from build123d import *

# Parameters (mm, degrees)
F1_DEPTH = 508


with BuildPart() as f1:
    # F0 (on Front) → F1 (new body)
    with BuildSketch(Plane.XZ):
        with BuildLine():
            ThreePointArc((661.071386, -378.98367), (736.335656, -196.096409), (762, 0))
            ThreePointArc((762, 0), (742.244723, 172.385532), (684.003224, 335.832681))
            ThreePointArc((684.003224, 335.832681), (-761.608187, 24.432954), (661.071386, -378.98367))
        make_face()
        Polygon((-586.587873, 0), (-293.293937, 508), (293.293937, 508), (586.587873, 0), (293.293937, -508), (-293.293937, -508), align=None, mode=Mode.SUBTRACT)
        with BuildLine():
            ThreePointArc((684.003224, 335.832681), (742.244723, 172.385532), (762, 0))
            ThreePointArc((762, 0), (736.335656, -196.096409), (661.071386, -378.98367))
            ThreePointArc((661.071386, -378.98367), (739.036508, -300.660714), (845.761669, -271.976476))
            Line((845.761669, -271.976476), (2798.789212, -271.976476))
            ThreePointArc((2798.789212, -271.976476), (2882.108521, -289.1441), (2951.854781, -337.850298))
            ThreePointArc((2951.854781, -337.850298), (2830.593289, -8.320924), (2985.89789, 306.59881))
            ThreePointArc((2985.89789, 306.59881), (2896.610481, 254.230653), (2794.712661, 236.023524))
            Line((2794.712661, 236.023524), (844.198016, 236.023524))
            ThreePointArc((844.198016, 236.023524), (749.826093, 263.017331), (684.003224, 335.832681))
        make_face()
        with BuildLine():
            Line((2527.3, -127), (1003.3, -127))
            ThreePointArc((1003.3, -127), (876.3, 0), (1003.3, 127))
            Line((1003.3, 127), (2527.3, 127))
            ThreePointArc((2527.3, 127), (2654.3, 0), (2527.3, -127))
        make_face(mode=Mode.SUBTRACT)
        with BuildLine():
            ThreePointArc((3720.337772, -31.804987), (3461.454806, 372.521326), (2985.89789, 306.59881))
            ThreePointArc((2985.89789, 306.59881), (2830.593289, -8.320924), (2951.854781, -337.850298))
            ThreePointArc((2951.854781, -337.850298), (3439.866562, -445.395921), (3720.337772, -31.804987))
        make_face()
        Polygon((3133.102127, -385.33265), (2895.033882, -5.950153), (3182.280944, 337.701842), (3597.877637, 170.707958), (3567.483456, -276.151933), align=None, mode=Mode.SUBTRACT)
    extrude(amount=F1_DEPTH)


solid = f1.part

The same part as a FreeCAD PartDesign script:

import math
import FreeCAD as App
import Part
import Sketcher
Q = App.Units.Quantity


def add_polygon(sketch, points):
    """Adds a closed chain of lines whose ends are joined by coincident constraints."""
    first, n = sketch.GeometryCount, len(points)
    for a, b in zip(points, points[1:] + points[:1]):
        sketch.addGeometry(Part.LineSegment(App.Vector(*a, 0), App.Vector(*b, 0)), False)
    for i in range(n):
        sketch.addConstraint(Sketcher.Constraint("Coincident", first + i, 2, first + (i + 1) % n, 1))

doc = App.newDocument("Part")
body = doc.addObject("PartDesign::Body", "Body")

# Sketch on XZ plane
sketch1 = body.newObject("Sketcher::SketchObject", "Sketch")
sketch1.AttachmentSupport = (doc.getObject("XZ_Plane"), [""])
sketch1.MapMode = "FlatFace"
sketch1.addGeometry(Part.ArcOfCircle(Part.Circle(App.Vector(0, 0, 0), App.Vector(0, 0, 1), 762), math.radians(26.150167), math.radians(330.174911)), False)  # 0
sketch1.addGeometry(Part.ArcOfCircle(Part.Circle(App.Vector(845.761668, -484.864219, 0), App.Vector(0, 0, 1), 212.887743), math.radians(90), math.radians(150.174911)), False)  # 1
sketch1.addGeometry(Part.LineSegment(App.Vector(845.761669, -271.976476, 0), App.Vector(2798.789212, -271.976476, 0)), False)  # 2
sketch1.addGeometry(Part.ArcOfCircle(Part.Circle(App.Vector(2798.789213, -482.746306, 0), App.Vector(0, 0, 1), 210.76983), math.radians(43.429448), math.radians(90)), False)  # 3
sketch1.addGeometry(Part.ArcOfCircle(Part.Circle(App.Vector(3275.15561, -31.804988, 0), App.Vector(0, 0, 1), 445.182162), math.radians(-136.570552), math.radians(0)), False)  # 4
sketch1.addGeometry(Part.ArcOfCircle(Part.Circle(App.Vector(3275.155609, -31.804987, 0), App.Vector(0, 0, 1), 445.182163), math.radians(0), math.radians(130.522859)), False)  # 5
sketch1.addGeometry(Part.ArcOfCircle(Part.Circle(App.Vector(2794.712663, 530.267191, 0), App.Vector(0, 0, 1), 294.243667), math.radians(-90), math.radians(-49.477141)), False)  # 6
sketch1.addGeometry(Part.LineSegment(App.Vector(2794.712661, 236.023524, 0), App.Vector(844.198016, 236.023524, 0)), False)  # 7
sketch1.addGeometry(Part.ArcOfCircle(Part.Circle(App.Vector(844.198017, 414.485304, 0), App.Vector(0, 0, 1), 178.46178), math.radians(-153.849832), math.radians(-90)), False)  # 8
add_polygon(sketch1, [(3567.483456, -276.151933), (3133.102127, -385.33265), (2895.033882, -5.950153), (3182.280944, 337.701842), (3597.877637, 170.707958)])  # lines 9-13
add_polygon(sketch1, [(-293.293937, -508), (-586.587873, 0), (-293.293937, 508), (293.293937, 508), (586.587873, 0), (293.293937, -508)])  # lines 14-19
sketch1.addGeometry(Part.ArcOfCircle(Part.Circle(App.Vector(2527.3, 0, 0), App.Vector(0, 0, 1), 127), math.radians(-90), math.radians(90)), False)  # 20
sketch1.addGeometry(Part.LineSegment(App.Vector(2527.3, -127, 0), App.Vector(1003.3, -127, 0)), False)  # 21
sketch1.addGeometry(Part.ArcOfCircle(Part.Circle(App.Vector(1003.3, 0, 0), App.Vector(0, 0, 1), 127), math.radians(90), math.radians(270)), False)  # 22
sketch1.addGeometry(Part.LineSegment(App.Vector(1003.3, 127, 0), App.Vector(2527.3, 127, 0)), False)  # 23
sketch1.addConstraint([
    Sketcher.Constraint("Coincident", 0, 2, 1, 2),
    Sketcher.Constraint("Coincident", 1, 1, 2, 1),
    Sketcher.Constraint("Coincident", 2, 2, 3, 2),
    Sketcher.Constraint("Coincident", 3, 1, 4, 1),
    Sketcher.Constraint("Coincident", 4, 2, 5, 1),
    Sketcher.Constraint("Coincident", 5, 2, 6, 2),
    Sketcher.Constraint("Coincident", 6, 1, 7, 1),
    Sketcher.Constraint("Coincident", 7, 2, 8, 2),
    Sketcher.Constraint("Coincident", 8, 1, 0, 1),
    Sketcher.Constraint("Coincident", 20, 1, 21, 1),
    Sketcher.Constraint("Coincident", 21, 2, 22, 2),
    Sketcher.Constraint("Coincident", 22, 1, 23, 1),
    Sketcher.Constraint("Coincident", 23, 2, 20, 2),
    Sketcher.Constraint("Horizontal", 2),
    Sketcher.Constraint("Horizontal", 7),
    Sketcher.Constraint("Horizontal", 16),
    Sketcher.Constraint("Horizontal", 19),
    Sketcher.Constraint("Horizontal", 21),
    Sketcher.Constraint("Horizontal", 23),
    Sketcher.Constraint("Coincident", 0, 3, -1, 1),
    Sketcher.Constraint("Coincident", 5, 3, 4, 3),
    Sketcher.Constraint("PointOnObject", 20, 3, -1),
    Sketcher.Constraint("PointOnObject", 14, 2, -1),
    Sketcher.Constraint("PointOnObject", 17, 2, -1),
    Sketcher.Constraint("Radius", 0, Q("30 in")),
    Sketcher.Constraint("Radius", 20, Q("5 in")),
    Sketcher.Constraint("DistanceX", 21, 2, 21, 1, Q("60 in")),
    Sketcher.Constraint("DistanceX", 23, 1, 23, 2, Q("60 in")),
    Sketcher.Constraint("DistanceY", -1, 1, 15, 2, Q("20 in")),
    Sketcher.Constraint("DistanceY", 18, 2, -1, 1, Q("20 in")),
    Sketcher.Constraint("DistanceX", 22, 3, 20, 3, Q("60 in")),
    Sketcher.Constraint("DistanceY", 2, 2, 6, 1, Q("20 in")),
    Sketcher.Constraint("DistanceX", -1, 1, 20, 3, Q("99.5 in")),
    Sketcher.Constraint("DistanceX", -1, 1, 20, 1, Q("99.5 in")),
    Sketcher.Constraint("DistanceX", -1, 1, 22, 1, Q("39.5 in")),
    Sketcher.Constraint("Radius", 3, 210.76983),
    Sketcher.Constraint("Radius", 8, 178.46178),
    Sketcher.Constraint("Radius", 1, 212.887743),
    Sketcher.Constraint("Radius", 4, 445.182162),
    Sketcher.Constraint("Radius", 6, 294.243667),
    Sketcher.Constraint("DistanceY", 4, 3, 5, 2, 338.403798),
    Sketcher.Constraint("DistanceX", 10, 2, 3, 1, 56.820899),
    Sketcher.Constraint("DistanceX", 2, 1, 2, 2, 1953.027543),
    Sketcher.Constraint("DistanceX", 7, 2, 7, 1, 1950.514645),
    Sketcher.Constraint("DistanceX", 16, 1, 16, 2, 586.587874),
    Sketcher.Constraint("DistanceX", 19, 2, 19, 1, 586.587874),
    Sketcher.Constraint("DistanceX", -1, 1, 1, 3, 845.761668),
    Sketcher.Constraint("DistanceX", -1, 1, 4, 3, 3275.15561),
    Sketcher.Constraint("DistanceY", 4, 3, -1, 1, 31.804988),
    Sketcher.Constraint("DistanceY", 0, 2, -1, 1, 378.98367),
    Sketcher.Constraint("DistanceX", -1, 1, 1, 1, 845.761669),
    Sketcher.Constraint("DistanceX", -1, 1, 3, 1, 2951.854781),
    Sketcher.Constraint("DistanceX", -1, 1, 6, 1, 2794.712661),
    Sketcher.Constraint("DistanceY", -1, 1, 8, 1, 335.832681),
    Sketcher.Constraint("DistanceY", 9, 2, -1, 1, 385.33265),
    Sketcher.Constraint("DistanceY", -1, 1, 11, 2, 337.701842),
    Sketcher.Constraint("DistanceY", 3, 1, 4, 2, 306.045311),
    Sketcher.Constraint("DistanceX", 6, 3, 11, 2, 387.568281),
    Sketcher.Constraint("DistanceY", 12, 2, 5, 2, 135.890852),
    Sketcher.Constraint("DistanceX", 9, 2, 13, 2, 434.381329),
    Sketcher.Constraint("DistanceX", 13, 2, 12, 2, 30.394181),
    Sketcher.Constraint("DistanceY", 13, 2, 12, 2, 446.859891),
    Sketcher.Constraint("DistanceX", 14, 2, 7, 2, 1430.785889),
    Sketcher.Constraint("DistanceX", 15, 2, 8, 1, 977.297161),
    Sketcher.Constraint("DistanceX", 17, 2, 8, 1, 97.415351),
    Sketcher.Constraint("DistanceX", 18, 2, 1, 3, 552.467731),
    Sketcher.Constraint("Distance", 10, 447.892362),
    Sketcher.Constraint("Distance", 11, 447.892362),
])
pad1 = body.newObject("PartDesign::Pad", "Pad")
pad1.Profile = sketch1
pad1.Length = Q("20 in")

doc.recompute()
